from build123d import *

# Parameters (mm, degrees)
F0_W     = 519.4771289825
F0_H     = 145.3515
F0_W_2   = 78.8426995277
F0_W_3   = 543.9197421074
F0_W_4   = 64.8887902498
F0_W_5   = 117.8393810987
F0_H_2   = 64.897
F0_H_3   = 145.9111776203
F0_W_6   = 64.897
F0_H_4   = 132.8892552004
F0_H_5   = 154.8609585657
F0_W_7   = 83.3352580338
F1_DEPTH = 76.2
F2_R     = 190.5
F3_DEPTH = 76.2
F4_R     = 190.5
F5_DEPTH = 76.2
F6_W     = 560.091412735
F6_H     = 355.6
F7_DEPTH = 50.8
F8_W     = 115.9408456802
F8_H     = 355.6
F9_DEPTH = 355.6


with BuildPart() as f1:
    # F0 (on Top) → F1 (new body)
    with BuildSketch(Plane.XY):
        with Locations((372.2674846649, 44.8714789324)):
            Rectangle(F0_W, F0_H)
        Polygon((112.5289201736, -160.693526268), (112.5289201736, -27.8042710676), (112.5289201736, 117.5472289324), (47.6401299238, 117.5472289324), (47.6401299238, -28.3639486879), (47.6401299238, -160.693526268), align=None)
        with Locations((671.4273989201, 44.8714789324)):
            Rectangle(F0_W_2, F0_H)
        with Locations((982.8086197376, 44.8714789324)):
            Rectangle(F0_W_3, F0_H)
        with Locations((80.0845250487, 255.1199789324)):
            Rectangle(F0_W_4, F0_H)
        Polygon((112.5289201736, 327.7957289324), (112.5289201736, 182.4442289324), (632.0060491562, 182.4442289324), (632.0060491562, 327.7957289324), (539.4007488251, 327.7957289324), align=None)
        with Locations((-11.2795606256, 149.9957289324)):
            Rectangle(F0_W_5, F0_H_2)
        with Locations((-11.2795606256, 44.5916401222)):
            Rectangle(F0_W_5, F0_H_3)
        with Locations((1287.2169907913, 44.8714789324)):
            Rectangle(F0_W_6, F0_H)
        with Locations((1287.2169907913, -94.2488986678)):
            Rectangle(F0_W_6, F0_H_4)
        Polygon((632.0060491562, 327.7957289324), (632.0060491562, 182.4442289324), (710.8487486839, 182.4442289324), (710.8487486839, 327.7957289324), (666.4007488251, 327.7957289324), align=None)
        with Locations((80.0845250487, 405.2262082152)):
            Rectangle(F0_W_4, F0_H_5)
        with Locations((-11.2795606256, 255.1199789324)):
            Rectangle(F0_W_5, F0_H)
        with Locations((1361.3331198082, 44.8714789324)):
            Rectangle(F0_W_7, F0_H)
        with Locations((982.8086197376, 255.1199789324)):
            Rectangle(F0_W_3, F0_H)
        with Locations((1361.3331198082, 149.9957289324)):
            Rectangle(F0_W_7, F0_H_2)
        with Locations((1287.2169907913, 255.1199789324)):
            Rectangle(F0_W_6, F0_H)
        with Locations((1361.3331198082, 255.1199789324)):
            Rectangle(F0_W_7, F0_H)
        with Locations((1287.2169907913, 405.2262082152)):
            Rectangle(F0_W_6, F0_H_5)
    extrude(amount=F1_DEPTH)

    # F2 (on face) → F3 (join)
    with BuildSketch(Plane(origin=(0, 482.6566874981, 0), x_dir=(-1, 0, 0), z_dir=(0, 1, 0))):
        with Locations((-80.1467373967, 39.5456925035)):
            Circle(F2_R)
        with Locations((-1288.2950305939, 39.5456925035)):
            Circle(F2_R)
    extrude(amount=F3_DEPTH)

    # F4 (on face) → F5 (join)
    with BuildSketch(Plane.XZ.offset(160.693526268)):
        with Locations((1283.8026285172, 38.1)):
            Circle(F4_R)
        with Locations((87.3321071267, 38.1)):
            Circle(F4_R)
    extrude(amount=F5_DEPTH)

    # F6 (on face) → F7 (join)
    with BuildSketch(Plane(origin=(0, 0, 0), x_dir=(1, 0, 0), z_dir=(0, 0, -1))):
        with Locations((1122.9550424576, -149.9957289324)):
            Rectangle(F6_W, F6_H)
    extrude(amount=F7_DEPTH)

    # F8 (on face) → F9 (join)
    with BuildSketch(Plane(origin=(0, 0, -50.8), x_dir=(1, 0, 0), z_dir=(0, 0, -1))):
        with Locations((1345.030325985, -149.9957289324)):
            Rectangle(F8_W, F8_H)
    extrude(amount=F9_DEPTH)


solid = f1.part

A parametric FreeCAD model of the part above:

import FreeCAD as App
import Part
import Sketcher
from FreeCAD import Vector
Q = App.Units.Quantity


def add_polygon(sketch, points):
    """Adds a closed chain of lines whose ends are joined by coincident constraints."""
    first, n = sketch.GeometryCount, len(points)
    for a, b in zip(points, points[1:] + points[:1]):
        sketch.addGeometry(Part.LineSegment(App.Vector(*a, 0), App.Vector(*b, 0)), False)
    for i in range(n):
        sketch.addConstraint(Sketcher.Constraint("Coincident", first + i, 2, first + (i + 1) % n, 1))

doc = App.newDocument("Part")
body = doc.addObject("PartDesign::Body", "Body")

sketch1 = body.newObject("Sketcher::SketchObject", "Sketch")
sketch1.AttachmentSupport = (doc.getObject("XY_Plane"), [""])
sketch1.MapMode = "FlatFace"
add_polygon(sketch1, [(1403, -28), (1403, 328), (1320, 328), (1320, 483), (1255, 483), (1255, 328), (113, 328), (113, 483), (48, 483), (48, 328), (-70, 328), (-70, -28), (48, -28), (48, -161), (113, -161), (113, -28), (1255, -28), (1255, -161), (1320, -161), (1320, -28)])
add_polygon(sketch1, [(1320, 182), (1320, 118), (48, 118), (48, 182)])
sketch1.addConstraint([
    Sketcher.Constraint("Vertical", 0),
    Sketcher.Constraint("Horizontal", 1),
    Sketcher.Constraint("Vertical", 2),
    Sketcher.Constraint("Horizontal", 3),
    Sketcher.Constraint("Vertical", 4),
    Sketcher.Constraint("Horizontal", 5),
    Sketcher.Constraint("Vertical", 6),
    Sketcher.Constraint("Horizontal", 7),
    Sketcher.Constraint("Vertical", 8),
    Sketcher.Constraint("Horizontal", 9),
    Sketcher.Constraint("Vertical", 10),
    Sketcher.Constraint("Horizontal", 11),
    Sketcher.Constraint("Vertical", 12),
    Sketcher.Constraint("Horizontal", 13),
    Sketcher.Constraint("Vertical", 14),
    Sketcher.Constraint("Horizontal", 15),
    Sketcher.Constraint("Vertical", 16),
    Sketcher.Constraint("Horizontal", 17),
    Sketcher.Constraint("Vertical", 18),
    Sketcher.Constraint("Horizontal", 19),
    Sketcher.Constraint("Vertical", 20),
    Sketcher.Constraint("Horizontal", 21),
    Sketcher.Constraint("Vertical", 22),
    Sketcher.Constraint("Horizontal", 23),
    Sketcher.Constraint("Horizontal", 1, 2, 4, 2),
    Sketcher.Constraint("Horizontal", 3, 2, 6, 2),
    Sketcher.Constraint("Horizontal", 5, 2, 8, 2),
    Sketcher.Constraint("Horizontal", 13, 2, 16, 2),
    Sketcher.Constraint("Horizontal", 15, 2, 18, 2),
    Sketcher.Constraint("Vertical", 8, 2, 11, 2),
    Sketcher.Constraint("Vertical", 6, 2, 13, 2),
    Sketcher.Constraint("Vertical", 4, 2, 15, 2),
    Sketcher.Constraint("Vertical", 2, 2, 17, 2),
    Sketcher.Constraint("Vertical", 18, 2, 20, 2),
    Sketcher.Constraint("Vertical", 12, 2, 21, 2),
    Sketcher.Constraint("Equal", 17, 20),
    Sketcher.Constraint("DistanceY", 0, 1, 0, 2, Q("14 in")),
    Sketcher.Constraint("DistanceX", 3, 2, 3, 1, Q("2.555 in")),
    Sketcher.Constraint("DistanceY", 18, 2, 20, 2, Q("5.7225 in")),
    Sketcher.Constraint("DistanceX", 1, 2, 1, 1, 83.335258),
    Sketcher.Constraint("DistanceX", 5, 2, 5, 1, 1142.239571),
    Sketcher.Constraint("DistanceX", 7, 2, 7, 1, 64.88879),
    Sketcher.Constraint("DistanceX", 9, 2, 9, 1, 117.839381),
    Sketcher.Constraint("DistanceY", 2, 1, 2, 2, 154.860959),
    Sketcher.Constraint("DistanceY", 10, 2, 10, 1, 356.159678),
    Sketcher.Constraint("DistanceY", 12, 2, 12, 1, 132.329578),
    Sketcher.Constraint("DistanceX", -1, 1, 0, 2, 1403.000749),
    Sketcher.Constraint("DistanceY", -1, 1, 0, 2, 327.795729),
])
pad1 = body.newObject("PartDesign::Pad", "Pad")
pad1.Profile = sketch1
pad1.Length = Q("3 in")

sketch2 = body.newObject("Sketcher::SketchObject", "Sketch001")
sketch2.AttachmentSupport = (doc.getObject("XZ_Plane"), [""])
sketch2.MapMode = "FlatFace"
sketch2.AttachmentOffset = App.Placement(Vector(0, 0, -482.656687), App.Rotation())
sketch2.addGeometry([
    Part.Circle(Vector(80, 40, 0), Vector(0, 0, 1), 190),
    Part.Circle(Vector(1288, 40, 0), Vector(0, 0, 1), 190),
], False)
sketch2.addConstraint([
    Sketcher.Constraint("Equal", 0, 1),
    Sketcher.Constraint("Horizontal", 0, 3, 1, 3),
    Sketcher.Constraint("Diameter", 0, Q("15 in")),
    Sketcher.Constraint("DistanceX", -1, 1, 1, 3, 1288.295031),
    Sketcher.Constraint("DistanceX", -1, 1, 0, 3, 80.146737),
    Sketcher.Constraint("DistanceY", -1, 1, 0, 3, 39.545693),
])
pad2 = body.newObject("PartDesign::Pad", "Pad001")
pad2.Profile = sketch2
pad2.Length = Q("3 in")
pad2.Reversed = True

sketch3 = body.newObject("Sketcher::SketchObject", "Sketch002")
sketch3.AttachmentSupport = (doc.getObject("XZ_Plane"), [""])
sketch3.MapMode = "FlatFace"
sketch3.AttachmentOffset = App.Placement(Vector(0, 0, 160.693526), App.Rotation())
sketch3.addGeometry([
    Part.Circle(Vector(1284, 38, 0), Vector(0, 0, 1), 190),
    Part.Circle(Vector(87, 38, 0), Vector(0, 0, 1), 190),
], False)
sketch3.addConstraint([
    Sketcher.Constraint("Equal", 0, 1),
    Sketcher.Constraint("Horizontal", 0, 3, 1, 3),
    Sketcher.Constraint("Diameter", 0, Q("15 in")),
    Sketcher.Constraint("DistanceY", -1, 1, 0, 3, Q("1.5 in")),
    Sketcher.Constraint("DistanceX", -1, 1, 0, 3, 1283.802629),
    Sketcher.Constraint("DistanceX", 1, 3, 0, 3, 1196.470521),
])
pad3 = body.newObject("PartDesign::Pad", "Pad002")
pad3.Profile = sketch3
pad3.Length = Q("3 in")

sketch4 = body.newObject("Sketcher::SketchObject", "Sketch003")
sketch4.AttachmentSupport = (doc.getObject("XY_Plane"), [""])
sketch4.MapMode = "FlatFace"
add_polygon(sketch4, [(843, -28), (843, 328), (1403, 328), (1403, -28)])
sketch4.addConstraint([
    Sketcher.Constraint("Vertical", 0),
    Sketcher.Constraint("Horizontal", 1),
    Sketcher.Constraint("Vertical", 2),
    Sketcher.Constraint("Horizontal", 3),
    Sketcher.Constraint("DistanceY", 0, 1, 0, 2, Q("14 in")),
    Sketcher.Constraint("DistanceX", 1, 1, 1, 2, 560.091413),
    Sketcher.Constraint("DistanceY", -1, 1, 0, 2, 327.795729),
    Sketcher.Constraint("DistanceX", -1, 1, 1, 2, 1403.000749),
])
pad4 = body.newObject("PartDesign::Pad", "Pad003")
pad4.Profile = sketch4
pad4.Length = Q("2 in")
pad4.Reversed = True

sketch5 = body.newObject("Sketcher::SketchObject", "Sketch004")
sketch5.AttachmentSupport = (doc.getObject("XY_Plane"), [""])
sketch5.MapMode = "FlatFace"
sketch5.AttachmentOffset = App.Placement(Vector(0, 0, -2 * 25.4), App.Rotation())
add_polygon(sketch5, [(1287, -28), (1287, 328), (1403, 328), (1403, -28)])
sketch5.addConstraint([
    Sketcher.Constraint("Vertical", 0),
    Sketcher.Constraint("Horizontal", 1),
    Sketcher.Constraint("Vertical", 2),
    Sketcher.Constraint("Horizontal", 3),
    Sketcher.Constraint("DistanceY", 0, 1, 0, 2, Q("14 in")),
    Sketcher.Constraint("DistanceX", 1, 1, 1, 2, 115.940846),
    Sketcher.Constraint("DistanceY", -1, 1, 0, 2, 327.795729),
    Sketcher.Constraint("DistanceX", -1, 1, 1, 2, 1403.000749),
])
pad5 = body.newObject("PartDesign::Pad", "Pad004")
pad5.Profile = sketch5
pad5.Length = Q("14 in")
pad5.Reversed = True

doc.recompute()
